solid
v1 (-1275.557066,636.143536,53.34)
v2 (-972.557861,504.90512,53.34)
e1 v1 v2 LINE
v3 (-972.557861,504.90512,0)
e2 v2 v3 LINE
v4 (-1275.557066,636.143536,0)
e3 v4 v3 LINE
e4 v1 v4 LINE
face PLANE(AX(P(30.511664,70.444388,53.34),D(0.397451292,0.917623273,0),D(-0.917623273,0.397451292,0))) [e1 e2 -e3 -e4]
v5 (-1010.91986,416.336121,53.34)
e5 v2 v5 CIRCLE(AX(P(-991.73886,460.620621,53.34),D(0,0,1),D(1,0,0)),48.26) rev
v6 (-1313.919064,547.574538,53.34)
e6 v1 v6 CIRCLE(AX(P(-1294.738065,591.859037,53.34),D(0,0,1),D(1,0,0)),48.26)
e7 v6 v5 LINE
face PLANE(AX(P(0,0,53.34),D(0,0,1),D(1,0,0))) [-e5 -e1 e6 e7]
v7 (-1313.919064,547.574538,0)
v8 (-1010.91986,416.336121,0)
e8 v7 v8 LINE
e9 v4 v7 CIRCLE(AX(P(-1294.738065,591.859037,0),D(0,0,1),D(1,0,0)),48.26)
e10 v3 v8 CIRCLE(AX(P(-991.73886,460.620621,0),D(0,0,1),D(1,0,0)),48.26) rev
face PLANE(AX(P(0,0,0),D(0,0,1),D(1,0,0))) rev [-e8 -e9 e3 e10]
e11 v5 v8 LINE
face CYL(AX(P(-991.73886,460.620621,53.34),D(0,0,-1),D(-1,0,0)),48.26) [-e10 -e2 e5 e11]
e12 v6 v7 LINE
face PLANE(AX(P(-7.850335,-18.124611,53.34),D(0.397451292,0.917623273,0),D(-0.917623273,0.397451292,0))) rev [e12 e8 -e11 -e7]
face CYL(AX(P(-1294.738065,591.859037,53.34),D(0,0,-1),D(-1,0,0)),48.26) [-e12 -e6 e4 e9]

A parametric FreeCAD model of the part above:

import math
import FreeCAD as App
import Part
import Sketcher
Q = App.Units.Quantity

doc = App.newDocument("Part")
params = doc.addObject("Spreadsheet::Sheet", "Params")
for row, (alias, value) in enumerate([
    ("sketch1_radius", "1.9 in"),
    ("sketch1_length", "13 in"),
    ("pad1_length", "2.1 in"),
], start=1):
    params.set(f"A{row}", alias)
    params.set(f"B{row}", "=" + value)
    params.setAlias(f"B{row}", alias)

body = doc.addObject("PartDesign::Body", "Body")

# Sketch on XY plane
sketch1 = body.newObject("Sketcher::SketchObject", "Sketch")
sketch1.AttachmentSupport = (doc.getObject("XY_Plane"), [""])
sketch1.MapMode = "FlatFace"
sketch1.addGeometry(Part.LineSegment(App.Vector(-973, 505, 0), App.Vector(-1276, 636, 0)), False)
sketch1.addGeometry(Part.ArcOfCircle(Part.Circle(App.Vector(-1295, 592, 0), App.Vector(0, 0, 1), 48), math.radians(67), math.radians(247)), False)
sketch1.addGeometry(Part.LineSegment(App.Vector(-1314, 548, 0), App.Vector(-1011, 416, 0)), False)
sketch1.addGeometry(Part.ArcOfCircle(Part.Circle(App.Vector(-992, 461, 0), App.Vector(0, 0, 1), 48), math.radians(-113), math.radians(67)), False)
sketch1.addConstraint(Sketcher.Constraint("Tangent", 0, 2, 1, 1))
sketch1.addConstraint(Sketcher.Constraint("Tangent", 1, 2, 2, 1))
sketch1.addConstraint(Sketcher.Constraint("Tangent", 2, 2, 3, 1))
sketch1.addConstraint(Sketcher.Constraint("Tangent", 3, 2, 0, 1))
sketch1.addConstraint(Sketcher.Constraint("Equal", 1, 3))
sketch1.addConstraint(Sketcher.Constraint("Radius", 1, Q("1.9 in")))
sketch1.addConstraint(Sketcher.Constraint("Distance", 0, Q("13 in")))
sketch1.addConstraint(Sketcher.Constraint("DistanceX", 1, 3, 0, 2, Q("19.180999 mm")))
sketch1.addConstraint(Sketcher.Constraint("DistanceX", 3, 3, -1, 1, Q("991.73886 mm")))
sketch1.addConstraint(Sketcher.Constraint("DistanceY", -1, 1, 3, 3, Q("460.620621 mm")))
sketch1.setExpression("Constraints[5]", "Params.sketch1_radius")
sketch1.setExpression("Constraints[6]", "Params.sketch1_length")
pad1 = body.newObject("PartDesign::Pad", "Pad")
pad1.Profile = sketch1
pad1.setExpression("Length", "Params.pad1_length")

doc.recompute()
